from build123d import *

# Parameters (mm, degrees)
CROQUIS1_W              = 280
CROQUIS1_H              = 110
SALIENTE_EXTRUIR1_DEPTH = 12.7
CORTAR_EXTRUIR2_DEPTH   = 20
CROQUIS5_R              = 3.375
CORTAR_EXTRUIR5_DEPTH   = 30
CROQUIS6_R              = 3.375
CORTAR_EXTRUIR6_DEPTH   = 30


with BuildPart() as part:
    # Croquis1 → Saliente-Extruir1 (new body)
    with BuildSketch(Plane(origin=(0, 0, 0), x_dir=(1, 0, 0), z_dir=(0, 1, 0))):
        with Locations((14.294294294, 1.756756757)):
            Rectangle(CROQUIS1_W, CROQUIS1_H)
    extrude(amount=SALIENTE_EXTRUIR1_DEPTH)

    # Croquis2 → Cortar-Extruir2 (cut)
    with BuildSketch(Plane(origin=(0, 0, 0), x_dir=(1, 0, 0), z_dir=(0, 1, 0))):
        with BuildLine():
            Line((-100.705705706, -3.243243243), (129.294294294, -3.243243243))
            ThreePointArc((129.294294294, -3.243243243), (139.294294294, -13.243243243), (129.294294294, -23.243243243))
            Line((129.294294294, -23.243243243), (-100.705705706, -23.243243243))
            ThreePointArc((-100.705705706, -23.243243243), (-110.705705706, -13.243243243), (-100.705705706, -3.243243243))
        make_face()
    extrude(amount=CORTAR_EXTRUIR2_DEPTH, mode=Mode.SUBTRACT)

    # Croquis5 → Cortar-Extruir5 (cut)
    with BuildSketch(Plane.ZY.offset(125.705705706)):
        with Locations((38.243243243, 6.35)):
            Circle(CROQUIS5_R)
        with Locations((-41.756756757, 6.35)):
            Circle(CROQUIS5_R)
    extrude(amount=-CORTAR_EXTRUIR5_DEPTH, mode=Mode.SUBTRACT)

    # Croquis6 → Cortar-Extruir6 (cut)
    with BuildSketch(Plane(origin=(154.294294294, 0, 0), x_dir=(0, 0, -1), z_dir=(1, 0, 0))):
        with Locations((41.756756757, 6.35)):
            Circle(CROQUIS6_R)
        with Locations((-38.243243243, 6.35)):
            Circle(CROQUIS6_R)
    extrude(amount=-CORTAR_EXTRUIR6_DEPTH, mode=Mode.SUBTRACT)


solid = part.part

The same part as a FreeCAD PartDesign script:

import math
import FreeCAD as App
import Part
import Sketcher
from FreeCAD import Vector
Q = App.Units.Quantity


def add_polygon(sketch, points):
    """Adds a closed chain of lines whose ends are joined by coincident constraints."""
    first, n = sketch.GeometryCount, len(points)
    for a, b in zip(points, points[1:] + points[:1]):
        sketch.addGeometry(Part.LineSegment(App.Vector(*a, 0), App.Vector(*b, 0)), False)
    for i in range(n):
        sketch.addConstraint(Sketcher.Constraint("Coincident", first + i, 2, first + (i + 1) % n, 1))

doc = App.newDocument("Part")
body = doc.addObject("PartDesign::Body", "Body")

sketch1 = doc.addObject("Sketcher::SketchObject", "Sketch")
body.addObject(sketch1)
sketch1.AttachmentSupport = (doc.XZ_Plane, [""])
sketch1.MapMode = "FlatFace"
add_polygon(sketch1, [(-126, -57), (-126, 53), (154, 53), (154, -57)])
sketch1.addConstraint(Sketcher.Constraint("Vertical", 0))
sketch1.addConstraint(Sketcher.Constraint("Horizontal", 1))
sketch1.addConstraint(Sketcher.Constraint("Vertical", 2))
sketch1.addConstraint(Sketcher.Constraint("Horizontal", 3))
sketch1.addConstraint(Sketcher.Constraint("DistanceX", 1, 1, 1, 2, Q("280 mm")))
sketch1.addConstraint(Sketcher.Constraint("DistanceY", 0, 1, 0, 2, Q("110 mm")))
sketch1.addConstraint(Sketcher.Constraint("DistanceX", 0, 2, -1, 1, Q("125.705706 mm")))
sketch1.addConstraint(Sketcher.Constraint("DistanceY", -1, 1, 0, 2, Q("53.243243 mm")))
pad1 = doc.addObject("PartDesign::Pad", "Pad")
body.addObject(pad1)
pad1.Profile = sketch1
pad1.Length = 12.7
pad1.Reversed = True

sketch2 = doc.addObject("Sketcher::SketchObject", "Sketch001")
body.addObject(sketch2)
sketch2.AttachmentSupport = (doc.XZ_Plane, [""])
sketch2.MapMode = "FlatFace"
sketch2.addGeometry(Part.LineSegment(Vector(129, 3, 0), Vector(-101, 3, 0)), False)
sketch2.addGeometry(Part.ArcOfCircle(Part.Circle(Vector(-101, 13, 0), Vector(0, 0, 1), 10), math.radians(90), math.radians(270)), False)
sketch2.addGeometry(Part.LineSegment(Vector(-101, 23, 0), Vector(129, 23, 0)), False)
sketch2.addGeometry(Part.ArcOfCircle(Part.Circle(Vector(129, 13, 0), Vector(0, 0, 1), 10), math.radians(-90), math.radians(90)), False)
sketch2.addConstraint(Sketcher.Constraint("Tangent", 0, 2, 1, 2))
sketch2.addConstraint(Sketcher.Constraint("Tangent", 1, 1, 2, 1))
sketch2.addConstraint(Sketcher.Constraint("Tangent", 2, 2, 3, 2))
sketch2.addConstraint(Sketcher.Constraint("Tangent", 3, 1, 0, 1))
sketch2.addConstraint(Sketcher.Constraint("Horizontal", 0))
sketch2.addConstraint(Sketcher.Constraint("Horizontal", 2))
sketch2.addConstraint(Sketcher.Constraint("Radius", 1, Q("10 mm")))
sketch2.addConstraint(Sketcher.Constraint("DistanceX", 0, 2, 0, 1, Q("230 mm")))
sketch2.addConstraint(Sketcher.Constraint("DistanceX", 1, 3, -1, 1, Q("100.705706 mm")))
sketch2.addConstraint(Sketcher.Constraint("DistanceY", -1, 1, 1, 3, Q("13.243243 mm")))
pocket1 = doc.addObject("PartDesign::Pocket", "Pocket")
body.addObject(pocket1)
pocket1.Profile = sketch2
pocket1.Length = 20

sketch3 = doc.addObject("Sketcher::SketchObject", "Sketch002")
body.addObject(sketch3)
sketch3.AttachmentSupport = (doc.YZ_Plane, [""])
sketch3.MapMode = "FlatFace"
sketch3.AttachmentOffset = App.Placement(Vector(0, 0, -125.705706), App.Rotation())
sketch3.addGeometry(Part.Circle(Vector(6.3, 38.2, 0), Vector(0, 0, 1), 3.4), False)
sketch3.addGeometry(Part.Circle(Vector(6.3, -41.8, 0), Vector(0, 0, 1), 3.4), False)
sketch3.addConstraint(Sketcher.Constraint("Equal", 0, 1))
sketch3.addConstraint(Sketcher.Constraint("Vertical", 0, 3, 1, 3))
sketch3.addConstraint(Sketcher.Constraint("Diameter", 0, Q("6.75 mm")))
sketch3.addConstraint(Sketcher.Constraint("DistanceY", 1, 3, 0, 3, Q("80 mm")))
sketch3.addConstraint(Sketcher.Constraint("DistanceX", -1, 1, 0, 3, Q("6.35 mm")))
sketch3.addConstraint(Sketcher.Constraint("DistanceY", -1, 1, 0, 3, Q("38.243243 mm")))
pocket2 = doc.addObject("PartDesign::Pocket", "Pocket001")
body.addObject(pocket2)
pocket2.Profile = sketch3
pocket2.Length = 30
pocket2.Reversed = True

sketch4 = doc.addObject("Sketcher::SketchObject", "Sketch003")
body.addObject(sketch4)
sketch4.AttachmentSupport = (doc.YZ_Plane, [""])
sketch4.MapMode = "FlatFace"
sketch4.AttachmentOffset = App.Placement(Vector(0, 0, 154.294294), App.Rotation())
sketch4.addGeometry(Part.Circle(Vector(6.3, -41.8, 0), Vector(0, 0, 1), 3.4), False)
sketch4.addGeometry(Part.Circle(Vector(6.3, 38.2, 0), Vector(0, 0, 1), 3.4), False)
sketch4.addConstraint(Sketcher.Constraint("Equal", 0, 1))
sketch4.addConstraint(Sketcher.Constraint("Vertical", 0, 3, 1, 3))
sketch4.addConstraint(Sketcher.Constraint("Diameter", 0, Q("6.75 mm")))
sketch4.addConstraint(Sketcher.Constraint("DistanceY", 0, 3, 1, 3, Q("80 mm")))
sketch4.addConstraint(Sketcher.Constraint("DistanceX", -1, 1, 0, 3, Q("6.35 mm")))
sketch4.addConstraint(Sketcher.Constraint("DistanceY", 0, 3, -1, 1, Q("41.756757 mm")))
pocket3 = doc.addObject("PartDesign::Pocket", "Pocket002")
body.addObject(pocket3)
pocket3.Profile = sketch4
pocket3.Length = 30

doc.recompute()
